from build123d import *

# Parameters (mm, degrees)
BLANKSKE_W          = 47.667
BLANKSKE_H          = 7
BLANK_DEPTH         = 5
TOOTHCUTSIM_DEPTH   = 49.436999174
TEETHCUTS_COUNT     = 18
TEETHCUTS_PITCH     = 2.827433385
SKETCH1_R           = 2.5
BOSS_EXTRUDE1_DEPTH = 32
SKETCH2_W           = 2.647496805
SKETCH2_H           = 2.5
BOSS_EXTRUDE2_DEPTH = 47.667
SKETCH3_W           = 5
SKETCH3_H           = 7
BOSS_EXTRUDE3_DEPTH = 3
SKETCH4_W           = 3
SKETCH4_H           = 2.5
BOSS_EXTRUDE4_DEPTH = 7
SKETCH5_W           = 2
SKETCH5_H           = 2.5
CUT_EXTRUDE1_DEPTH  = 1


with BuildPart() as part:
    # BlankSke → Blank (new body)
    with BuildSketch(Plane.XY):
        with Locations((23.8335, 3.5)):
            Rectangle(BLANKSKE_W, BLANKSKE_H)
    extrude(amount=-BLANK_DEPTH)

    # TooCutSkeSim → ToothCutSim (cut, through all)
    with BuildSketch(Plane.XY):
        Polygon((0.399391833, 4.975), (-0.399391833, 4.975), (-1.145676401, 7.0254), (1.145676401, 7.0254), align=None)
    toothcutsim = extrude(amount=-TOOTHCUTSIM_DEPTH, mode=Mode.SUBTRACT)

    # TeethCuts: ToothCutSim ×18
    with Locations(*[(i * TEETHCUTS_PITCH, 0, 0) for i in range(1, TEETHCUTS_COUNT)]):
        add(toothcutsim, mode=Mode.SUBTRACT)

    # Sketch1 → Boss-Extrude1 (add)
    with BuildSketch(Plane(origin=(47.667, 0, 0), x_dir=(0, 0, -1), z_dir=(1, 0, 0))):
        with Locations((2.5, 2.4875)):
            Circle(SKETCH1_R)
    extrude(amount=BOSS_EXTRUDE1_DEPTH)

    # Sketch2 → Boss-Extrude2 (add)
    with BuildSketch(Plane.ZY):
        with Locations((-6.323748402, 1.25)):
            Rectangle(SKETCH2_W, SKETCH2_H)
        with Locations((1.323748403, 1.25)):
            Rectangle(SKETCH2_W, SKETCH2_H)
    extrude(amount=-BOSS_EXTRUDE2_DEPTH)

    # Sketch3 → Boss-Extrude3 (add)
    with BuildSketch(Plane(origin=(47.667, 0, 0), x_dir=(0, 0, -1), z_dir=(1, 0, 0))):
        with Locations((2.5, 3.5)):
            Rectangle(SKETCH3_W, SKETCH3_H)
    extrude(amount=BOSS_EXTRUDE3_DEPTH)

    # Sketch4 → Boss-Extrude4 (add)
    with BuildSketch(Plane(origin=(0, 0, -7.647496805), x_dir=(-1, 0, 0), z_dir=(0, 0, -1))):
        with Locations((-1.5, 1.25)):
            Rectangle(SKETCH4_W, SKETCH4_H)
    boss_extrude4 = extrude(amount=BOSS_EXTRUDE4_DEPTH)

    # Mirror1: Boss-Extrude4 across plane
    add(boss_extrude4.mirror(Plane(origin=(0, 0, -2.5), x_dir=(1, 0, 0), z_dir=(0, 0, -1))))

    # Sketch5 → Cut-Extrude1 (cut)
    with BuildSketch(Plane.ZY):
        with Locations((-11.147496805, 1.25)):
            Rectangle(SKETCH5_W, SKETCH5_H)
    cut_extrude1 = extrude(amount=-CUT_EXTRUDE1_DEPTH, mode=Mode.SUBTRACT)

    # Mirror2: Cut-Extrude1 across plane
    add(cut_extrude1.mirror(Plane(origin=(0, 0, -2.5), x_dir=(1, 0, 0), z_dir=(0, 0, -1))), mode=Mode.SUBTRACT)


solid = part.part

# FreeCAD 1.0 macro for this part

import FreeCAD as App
import Part
import Sketcher
from FreeCAD import Vector
Q = App.Units.Quantity

doc = App.newDocument("Part")
body = doc.addObject("PartDesign::Body", "Body")

# Sketch on XY plane
sketch1 = body.newObject("Sketcher::SketchObject", "Sketch")
sketch1.AttachmentSupport = (doc.getObject("XY_Plane"), [""])
sketch1.MapMode = "FlatFace"
sketch1.addGeometry([
    Part.LineSegment(Vector(0, 7, 0), Vector(0, 0, 0)),
    Part.LineSegment(Vector(0, 0, 0), Vector(48, 0, 0)),
    Part.LineSegment(Vector(48, 0, 0), Vector(48, 7, 0)),
    Part.LineSegment(Vector(48, 7, 0), Vector(0, 7, 0)),
], False)
sketch1.addConstraint([
    Sketcher.Constraint("Coincident", 0, 2, 1, 1),
    Sketcher.Constraint("Coincident", 1, 2, 2, 1),
    Sketcher.Constraint("Coincident", 2, 2, 3, 1),
    Sketcher.Constraint("Coincident", 3, 2, 0, 1),
    Sketcher.Constraint("Vertical", 0),
    Sketcher.Constraint("Horizontal", 1),
    Sketcher.Constraint("Vertical", 2),
    Sketcher.Constraint("Horizontal", 3),
    Sketcher.Constraint("Coincident", 0, 2, -1, 1),
    Sketcher.Constraint("DistanceY", 0, 2, 0, 1, Q("7 mm")),
    Sketcher.Constraint("DistanceX", 1, 1, 1, 2, Q("47.667 mm")),
])
pad1 = body.newObject("PartDesign::Pad", "Pad")
pad1.Profile = sketch1
pad1.Length = 5
pad1.Reversed = True

# Sketch on XY plane
sketch2 = body.newObject("Sketcher::SketchObject", "Sketch001")
sketch2.AttachmentSupport = (doc.getObject("XY_Plane"), [""])
sketch2.MapMode = "FlatFace"
sketch2.addGeometry([
    Part.LineSegment(Vector(-0.4, 5, 0), Vector(0.4, 5, 0)),
    Part.LineSegment(Vector(0.4, 5, 0), Vector(1.1, 7, 0)),
    Part.LineSegment(Vector(1.1, 7, 0), Vector(-1.1, 7, 0)),
    Part.LineSegment(Vector(-1.1, 7, 0), Vector(-0.4, 5, 0)),
], False)
sketch2.addConstraint([
    Sketcher.Constraint("Coincident", 0, 2, 1, 1),
    Sketcher.Constraint("Coincident", 1, 2, 2, 1),
    Sketcher.Constraint("Coincident", 2, 2, 3, 1),
    Sketcher.Constraint("Coincident", 3, 2, 0, 1),
    Sketcher.Constraint("Horizontal", 0),
    Sketcher.Constraint("Horizontal", 2),
    Sketcher.Constraint("Equal", 1, 3),
    Sketcher.Constraint("Angle", 1, Q("70 deg")),
    Sketcher.Constraint("DistanceY", -1, 1, 0, 2, Q("4.975 mm")),
    Sketcher.Constraint("DistanceY", -1, 1, 1, 2, Q("7.0254 mm")),
    Sketcher.Constraint("DistanceX", 0, 1, 0, 2, Q("0.798784 mm")),
    Sketcher.Constraint("DistanceX", -1, 1, 0, 2, Q("0.399392 mm")),
])
pocket1 = body.newObject("PartDesign::Pocket", "Pocket")
pocket1.Profile = sketch2
pocket1.Type = "ThroughAll"
doc.recompute()

linearpattern = body.newObject("PartDesign::LinearPattern", "LinearPattern")
linearpattern.Originals = [pocket1]
linearpattern.Direction = (doc.getObject("X_Axis"), [""])
linearpattern.Mode = "offset"
linearpattern.Offset = 2.827433
linearpattern.Occurrences = 18
body.Tip = linearpattern

# Sketch on YZ plane
sketch3 = body.newObject("Sketcher::SketchObject", "Sketch002")
sketch3.AttachmentSupport = (doc.getObject("YZ_Plane"), [""])
sketch3.MapMode = "FlatFace"
sketch3.AttachmentOffset = App.Placement(Vector(0, 0, 47.667), App.Rotation())
sketch3.addGeometry(Part.Circle(Vector(2.5, -2.5, 0), Vector(0, 0, 1), 2.5), False)
sketch3.addConstraint([
    Sketcher.Constraint("Diameter", 0, Q("5 mm")),
    Sketcher.Constraint("DistanceY", 0, 3, -1, 1, Q("2.5 mm")),
    Sketcher.Constraint("DistanceX", -1, 1, 0, 3, Q("2.4875 mm")),
])
pad2 = body.newObject("PartDesign::Pad", "Pad001")
pad2.Profile = sketch3
pad2.Length = 32

# Sketch on YZ plane
sketch4 = body.newObject("Sketcher::SketchObject", "Sketch003")
sketch4.AttachmentSupport = (doc.getObject("YZ_Plane"), [""])
sketch4.MapMode = "FlatFace"
sketch4.addGeometry([
    Part.LineSegment(Vector(2.5, -7.6, 0), Vector(0, -7.6, 0)),  # 0
    Part.LineSegment(Vector(0, -7.6, 0), Vector(0, -5, 0)),  # 1
    Part.LineSegment(Vector(0, -5, 0), Vector(2.5, -5, 0)),  # 2
    Part.LineSegment(Vector(2.5, -5, 0), Vector(2.5, -7.6, 0)),  # 3
    Part.LineSegment(Vector(2.5, 0, 0), Vector(0, 0, 0)),  # 4
    Part.LineSegment(Vector(0, 0, 0), Vector(0, 2.6, 0)),  # 5
    Part.LineSegment(Vector(0, 2.6, 0), Vector(2.5, 2.6, 0)),  # 6
    Part.LineSegment(Vector(2.5, 2.6, 0), Vector(2.5, 0, 0)),  # 7
], False)
sketch4.addConstraint([
    Sketcher.Constraint("Coincident", 0, 2, 1, 1),
    Sketcher.Constraint("Coincident", 1, 2, 2, 1),
    Sketcher.Constraint("Coincident", 2, 2, 3, 1),
    Sketcher.Constraint("Coincident", 3, 2, 0, 1),
    Sketcher.Constraint("Coincident", 4, 2, 5, 1),
    Sketcher.Constraint("Coincident", 5, 2, 6, 1),
    Sketcher.Constraint("Coincident", 6, 2, 7, 1),
    Sketcher.Constraint("Coincident", 7, 2, 4, 1),
    Sketcher.Constraint("Horizontal", 0),
    Sketcher.Constraint("Vertical", 1),
    Sketcher.Constraint("Horizontal", 2),
    Sketcher.Constraint("Vertical", 3),
    Sketcher.Constraint("Horizontal", 4),
    Sketcher.Constraint("Vertical", 5),
    Sketcher.Constraint("Horizontal", 6),
    Sketcher.Constraint("Vertical", 7),
    Sketcher.Constraint("Coincident", 4, 2, -1, 1),
    Sketcher.Constraint("PointOnObject", 0, 2, -2),
    Sketcher.Constraint("Vertical", 3, 2, 6, 2),
    Sketcher.Constraint("Equal", 3, 5),
    Sketcher.Constraint("DistanceX", 0, 2, 0, 1, Q("2.5 mm")),
    Sketcher.Constraint("DistanceY", 1, 2, -1, 1, Q("5 mm")),
    Sketcher.Constraint("DistanceY", 1, 1, 1, 2, Q("2.647497 mm")),
])
pad3 = body.newObject("PartDesign::Pad", "Pad002")
pad3.Profile = sketch4
pad3.Length = 47.667

# Sketch on YZ plane
sketch5 = body.newObject("Sketcher::SketchObject", "Sketch004")
sketch5.AttachmentSupport = (doc.getObject("YZ_Plane"), [""])
sketch5.MapMode = "FlatFace"
sketch5.AttachmentOffset = App.Placement(Vector(0, 0, 47.667), App.Rotation())
sketch5.addGeometry([
    Part.LineSegment(Vector(7, 0, 0), Vector(0, 0, 0)),
    Part.LineSegment(Vector(0, 0, 0), Vector(0, -5, 0)),
    Part.LineSegment(Vector(0, -5, 0), Vector(7, -5, 0)),
    Part.LineSegment(Vector(7, -5, 0), Vector(7, 0, 0)),
], False)
sketch5.addConstraint([
    Sketcher.Constraint("Coincident", 0, 2, 1, 1),
    Sketcher.Constraint("Coincident", 1, 2, 2, 1),
    Sketcher.Constraint("Coincident", 2, 2, 3, 1),
    Sketcher.Constraint("Coincident", 3, 2, 0, 1),
    Sketcher.Constraint("Horizontal", 0),
    Sketcher.Constraint("Vertical", 1),
    Sketcher.Constraint("Horizontal", 2),
    Sketcher.Constraint("Vertical", 3),
    Sketcher.Constraint("Coincident", 0, 2, -1, 1),
    Sketcher.Constraint("DistanceX", 0, 2, 0, 1, Q("7 mm")),
    Sketcher.Constraint("DistanceY", 1, 2, 1, 1, Q("5 mm")),
])
pad4 = body.newObject("PartDesign::Pad", "Pad003")
pad4.Profile = sketch5
pad4.Length = 3

# Sketch on XY plane
sketch6 = body.newObject("Sketcher::SketchObject", "Sketch005")
sketch6.AttachmentSupport = (doc.getObject("XY_Plane"), [""])
sketch6.MapMode = "FlatFace"
sketch6.AttachmentOffset = App.Placement(Vector(0, 0, -7.647497), App.Rotation())
sketch6.addGeometry([
    Part.LineSegment(Vector(3, 2.5, 0), Vector(3, 0, 0)),
    Part.LineSegment(Vector(3, 0, 0), Vector(0, 0, 0)),
    Part.LineSegment(Vector(0, 0, 0), Vector(0, 2.5, 0)),
    Part.LineSegment(Vector(0, 2.5, 0), Vector(3, 2.5, 0)),
], False)
sketch6.addConstraint([
    Sketcher.Constraint("Coincident", 0, 2, 1, 1),
    Sketcher.Constraint("Coincident", 1, 2, 2, 1),
    Sketcher.Constraint("Coincident", 2, 2, 3, 1),
    Sketcher.Constraint("Coincident", 3, 2, 0, 1),
    Sketcher.Constraint("Vertical", 0),
    Sketcher.Constraint("Horizontal", 1),
    Sketcher.Constraint("Vertical", 2),
    Sketcher.Constraint("Horizontal", 3),
    Sketcher.Constraint("Coincident", 1, 2, -1, 1),
    Sketcher.Constraint("DistanceX", 1, 2, 1, 1, Q("3 mm")),
    Sketcher.Constraint("DistanceY", 0, 2, 0, 1, Q("2.5 mm")),
])
pad5 = body.newObject("PartDesign::Pad", "Pad004")
pad5.Profile = sketch6
pad5.Length = 7
pad5.Reversed = True
doc.recompute()

datumplane = body.newObject("PartDesign::Plane", "DatumPlane")
datumplane.AttachmentSupport = (doc.getObject("XY_Plane"), [""])
datumplane.MapMode = "FlatFace"
datumplane.AttachmentOffset = App.Placement(Vector(0, 0, -2.5), App.Rotation())
mirrored = body.newObject("PartDesign::Mirrored", "Mirrored")
mirrored.Originals = [pad5]
mirrored.MirrorPlane = (datumplane, [""])
body.Tip = mirrored

# Sketch on YZ plane
sketch7 = body.newObject("Sketcher::SketchObject", "Sketch006")
sketch7.AttachmentSupport = (doc.getObject("YZ_Plane"), [""])
sketch7.MapMode = "FlatFace"
sketch7.addGeometry([
    Part.LineSegment(Vector(2.5, -12.1, 0), Vector(0, -12.1, 0)),
    Part.LineSegment(Vector(0, -12.1, 0), Vector(0, -10.1, 0)),
    Part.LineSegment(Vector(0, -10.1, 0), Vector(2.5, -10.1, 0)),
    Part.LineSegment(Vector(2.5, -10.1, 0), Vector(2.5, -12.1, 0)),
], False)
sketch7.addConstraint([
    Sketcher.Constraint("Coincident", 0, 2, 1, 1),
    Sketcher.Constraint("Coincident", 1, 2, 2, 1),
    Sketcher.Constraint("Coincident", 2, 2, 3, 1),
    Sketcher.Constraint("Coincident", 3, 2, 0, 1),
    Sketcher.Constraint("Horizontal", 0),
    Sketcher.Constraint("Vertical", 1),
    Sketcher.Constraint("Horizontal", 2),
    Sketcher.Constraint("Vertical", 3),
    Sketcher.Constraint("PointOnObject", 0, 2, -2),
    Sketcher.Constraint("DistanceY", 1, 1, 1, 2, Q("2 mm")),
    Sketcher.Constraint("DistanceX", 0, 2, 0, 1, Q("2.5 mm")),
    Sketcher.Constraint("DistanceY", 0, 2, -1, 1, Q("12.147497 mm")),
])
pocket2 = body.newObject("PartDesign::Pocket", "Pocket001")
pocket2.Profile = sketch7
pocket2.Length = 1
pocket2.Reversed = True
doc.recompute()

datumplane2 = body.newObject("PartDesign::Plane", "DatumPlane001")
datumplane2.AttachmentSupport = (doc.getObject("XY_Plane"), [""])
datumplane2.MapMode = "FlatFace"
datumplane2.AttachmentOffset = App.Placement(Vector(0, 0, -2.5), App.Rotation())
mirrored2 = body.newObject("PartDesign::Mirrored", "Mirrored001")
mirrored2.Originals = [pocket2]
mirrored2.MirrorPlane = (datumplane2, [""])
body.Tip = mirrored2

doc.recompute()
